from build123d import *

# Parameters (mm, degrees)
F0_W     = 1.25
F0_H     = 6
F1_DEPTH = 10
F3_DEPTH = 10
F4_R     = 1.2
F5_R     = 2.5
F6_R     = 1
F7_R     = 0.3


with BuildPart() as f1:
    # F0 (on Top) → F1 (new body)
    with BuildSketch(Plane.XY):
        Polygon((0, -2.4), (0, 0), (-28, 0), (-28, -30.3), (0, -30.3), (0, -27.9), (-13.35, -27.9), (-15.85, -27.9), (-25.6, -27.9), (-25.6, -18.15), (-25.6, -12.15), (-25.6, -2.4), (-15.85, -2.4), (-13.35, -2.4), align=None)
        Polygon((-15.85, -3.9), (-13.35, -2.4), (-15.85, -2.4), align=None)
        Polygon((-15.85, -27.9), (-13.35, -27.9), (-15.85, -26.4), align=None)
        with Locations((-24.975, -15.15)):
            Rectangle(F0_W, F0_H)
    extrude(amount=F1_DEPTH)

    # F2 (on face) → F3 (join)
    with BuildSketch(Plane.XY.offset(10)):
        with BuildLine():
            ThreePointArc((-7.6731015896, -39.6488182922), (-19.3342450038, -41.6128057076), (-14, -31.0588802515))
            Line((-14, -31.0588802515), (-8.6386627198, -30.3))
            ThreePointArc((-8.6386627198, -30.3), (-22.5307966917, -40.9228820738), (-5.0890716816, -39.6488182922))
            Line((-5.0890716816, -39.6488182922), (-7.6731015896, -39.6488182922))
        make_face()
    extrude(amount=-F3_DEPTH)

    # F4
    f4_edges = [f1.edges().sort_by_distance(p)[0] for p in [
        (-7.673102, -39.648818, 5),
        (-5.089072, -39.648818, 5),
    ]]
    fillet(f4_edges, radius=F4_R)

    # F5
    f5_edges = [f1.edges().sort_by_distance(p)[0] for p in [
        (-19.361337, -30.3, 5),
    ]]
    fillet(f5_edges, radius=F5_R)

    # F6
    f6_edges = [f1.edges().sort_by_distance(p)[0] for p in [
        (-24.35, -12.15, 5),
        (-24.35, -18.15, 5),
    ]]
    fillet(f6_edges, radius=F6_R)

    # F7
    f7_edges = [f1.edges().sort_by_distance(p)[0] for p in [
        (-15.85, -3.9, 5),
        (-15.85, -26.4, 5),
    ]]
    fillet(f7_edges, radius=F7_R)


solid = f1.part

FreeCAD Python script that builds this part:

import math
import FreeCAD as App
import Part
import Sketcher
from FreeCAD import Vector
Q = App.Units.Quantity


def edges_at(feature, points):
    """Names of the edges that pass closest to the given points."""
    edges = feature.Shape.Edges
    near = lambda p: min(range(len(edges)), key=lambda i: edges[i].distToShape(Part.Vertex(*p))[0])
    return sorted({f"Edge{near(p) + 1}" for p in points})


def add_polygon(sketch, points):
    """Adds a closed chain of lines whose ends are joined by coincident constraints."""
    first, n = sketch.GeometryCount, len(points)
    for a, b in zip(points, points[1:] + points[:1]):
        sketch.addGeometry(Part.LineSegment(App.Vector(*a, 0), App.Vector(*b, 0)), False)
    for i in range(n):
        sketch.addConstraint(Sketcher.Constraint("Coincident", first + i, 2, first + (i + 1) % n, 1))

doc = App.newDocument("Part")
body = doc.addObject("PartDesign::Body", "Body")

sketch1 = body.newObject("Sketcher::SketchObject", "Sketch")
sketch1.AttachmentSupport = (doc.getObject("XY_Plane"), [""])
sketch1.MapMode = "FlatFace"
add_polygon(sketch1, [(0, -2.4), (0, 0), (-28, 0), (-28, -30.3), (0, -30.3), (0, -27.9), (-13.3, -27.9), (-15.8, -26.4), (-15.8, -27.9), (-25.6, -27.9), (-25.6, -18.1), (-24.4, -18.1), (-24.4, -12.2), (-25.6, -12.2), (-25.6, -2.4), (-15.8, -2.4), (-15.8, -3.9), (-13.3, -2.4)])
sketch1.addConstraint(Sketcher.Constraint("Vertical", 0))
sketch1.addConstraint(Sketcher.Constraint("Horizontal", 1))
sketch1.addConstraint(Sketcher.Constraint("Vertical", 2))
sketch1.addConstraint(Sketcher.Constraint("Horizontal", 3))
sketch1.addConstraint(Sketcher.Constraint("Vertical", 4))
sketch1.addConstraint(Sketcher.Constraint("Horizontal", 5))
sketch1.addConstraint(Sketcher.Constraint("Vertical", 7))
sketch1.addConstraint(Sketcher.Constraint("Horizontal", 8))
sketch1.addConstraint(Sketcher.Constraint("Vertical", 9))
sketch1.addConstraint(Sketcher.Constraint("Horizontal", 10))
sketch1.addConstraint(Sketcher.Constraint("Vertical", 11))
sketch1.addConstraint(Sketcher.Constraint("Horizontal", 12))
sketch1.addConstraint(Sketcher.Constraint("Vertical", 13))
sketch1.addConstraint(Sketcher.Constraint("Horizontal", 14))
sketch1.addConstraint(Sketcher.Constraint("Vertical", 15))
sketch1.addConstraint(Sketcher.Constraint("Horizontal", 17))
sketch1.addConstraint(Sketcher.Constraint("Coincident", 0, 2, -1, 1))
sketch1.addConstraint(Sketcher.Constraint("PointOnObject", 3, 2, -2))
sketch1.addConstraint(Sketcher.Constraint("Horizontal", 5, 2, 7, 2))
sketch1.addConstraint(Sketcher.Constraint("Horizontal", 14, 2, 16, 2))
sketch1.addConstraint(Sketcher.Constraint("Vertical", 9, 2, 12, 2))
sketch1.addConstraint(Sketcher.Constraint("Vertical", 7, 2, 14, 2))
sketch1.addConstraint(Sketcher.Constraint("Vertical", 5, 2, 16, 2))
sketch1.addConstraint(Sketcher.Constraint("Equal", 0, 4))
sketch1.addConstraint(Sketcher.Constraint("Equal", 14, 9))
sketch1.addConstraint(Sketcher.Constraint("Equal", 9, 13))
sketch1.addConstraint(Sketcher.Constraint("Equal", 7, 15))
sketch1.addConstraint(Sketcher.Constraint("DistanceX", 1, 2, 1, 1, Q("28 mm")))
sketch1.addConstraint(Sketcher.Constraint("DistanceY", 11, 1, 11, 2, Q("6 mm")))
sketch1.addConstraint(Sketcher.Constraint("DistanceY", 0, 1, 0, 2, Q("2.4 mm")))
sketch1.addConstraint(Sketcher.Constraint("DistanceY", 2, 2, 2, 1, Q("30.3 mm")))
sketch1.addConstraint(Sketcher.Constraint("DistanceY", 7, 2, 7, 1, Q("1.5 mm")))
sketch1.addConstraint(Sketcher.Constraint("DistanceX", 11, 2, 16, 2, Q("11 mm")))
sketch1.addConstraint(Sketcher.Constraint("DistanceX", 5, 2, 5, 1, Q("13.35 mm")))
sketch1.addConstraint(Sketcher.Constraint("DistanceX", 10, 1, 10, 2, Q("1.25 mm")))
pad1 = body.newObject("PartDesign::Pad", "Pad")
pad1.Profile = sketch1
pad1.Length = 10

sketch2 = body.newObject("Sketcher::SketchObject", "Sketch001")
sketch2.AttachmentSupport = (doc.getObject("XY_Plane"), [""])
sketch2.MapMode = "FlatFace"
sketch2.AttachmentOffset = App.Placement(Vector(0, 0, 10), App.Rotation())
sketch2.addGeometry(Part.ArcOfCircle(Part.Circle(Vector(-14, -37.7, 0), Vector(0, 0, 1), 6.6), math.radians(90), math.radians(343)), False)
sketch2.addGeometry(Part.LineSegment(Vector(-14, -31.1, 0), Vector(-8.6, -30.3, 0)), False)
sketch2.addGeometry(Part.ArcOfCircle(Part.Circle(Vector(-14, -37.7, 0), Vector(0, 0, 1), 9.1), math.radians(54), math.radians(348)), False)
sketch2.addGeometry(Part.LineSegment(Vector(-5.1, -39.6, 0), Vector(-7.7, -39.6, 0)), False)
sketch2.addConstraint(Sketcher.Constraint("Coincident", 0, 1, 1, 1))
sketch2.addConstraint(Sketcher.Constraint("Coincident", 1, 2, 2, 1))
sketch2.addConstraint(Sketcher.Constraint("Coincident", 2, 2, 3, 1))
sketch2.addConstraint(Sketcher.Constraint("Coincident", 3, 2, 0, 2))
sketch2.addConstraint(Sketcher.Constraint("Horizontal", 3))
sketch2.addConstraint(Sketcher.Constraint("Coincident", 2, 3, 0, 3))
sketch2.addConstraint(Sketcher.Constraint("Vertical", 2, 3, 0, 1))
sketch2.addConstraint(Sketcher.Constraint("DistanceX", 0, 3, -1, 1, Q("14 mm")))
sketch2.addConstraint(Sketcher.Constraint("Radius", 0, Q("6.625 mm")))
sketch2.addConstraint(Sketcher.Constraint("Radius", 2, Q("9.125 mm")))
sketch2.addConstraint(Sketcher.Constraint("DistanceY", 1, 2, -1, 1, Q("30.3 mm")))
sketch2.addConstraint(Sketcher.Constraint("DistanceX", 3, 2, 3, 1, Q("2.58403 mm")))
sketch2.addConstraint(Sketcher.Constraint("Distance", 1, Q("5.414779 mm")))
pad2 = body.newObject("PartDesign::Pad", "Pad001")
pad2.Profile = sketch2
pad2.Length = 10
pad2.Reversed = True
doc.recompute()

fillet = body.newObject("PartDesign::Fillet", "Fillet")
fillet.Base = (pad2, edges_at(pad2, [(-7.673, -39.649, 5), (-5.089, -39.649, 5)]))
fillet.Radius = 1.2
doc.recompute()

fillet2 = body.newObject("PartDesign::Fillet", "Fillet001")
fillet2.Base = (fillet, edges_at(fillet, [(-19.361, -30.3, 5)]))
fillet2.Radius = 2.5
doc.recompute()

fillet3 = body.newObject("PartDesign::Fillet", "Fillet002")
fillet3.Base = (fillet2, edges_at(fillet2, [(-24.35, -12.15, 5), (-24.35, -18.15, 5)]))
fillet3.Radius = 1
doc.recompute()

fillet4 = body.newObject("PartDesign::Fillet", "Fillet003")
fillet4.Base = (fillet3, edges_at(fillet3, [(-15.85, -3.9, 5), (-15.85, -26.4, 5)]))
fillet4.Radius = 0.3

doc.recompute()
